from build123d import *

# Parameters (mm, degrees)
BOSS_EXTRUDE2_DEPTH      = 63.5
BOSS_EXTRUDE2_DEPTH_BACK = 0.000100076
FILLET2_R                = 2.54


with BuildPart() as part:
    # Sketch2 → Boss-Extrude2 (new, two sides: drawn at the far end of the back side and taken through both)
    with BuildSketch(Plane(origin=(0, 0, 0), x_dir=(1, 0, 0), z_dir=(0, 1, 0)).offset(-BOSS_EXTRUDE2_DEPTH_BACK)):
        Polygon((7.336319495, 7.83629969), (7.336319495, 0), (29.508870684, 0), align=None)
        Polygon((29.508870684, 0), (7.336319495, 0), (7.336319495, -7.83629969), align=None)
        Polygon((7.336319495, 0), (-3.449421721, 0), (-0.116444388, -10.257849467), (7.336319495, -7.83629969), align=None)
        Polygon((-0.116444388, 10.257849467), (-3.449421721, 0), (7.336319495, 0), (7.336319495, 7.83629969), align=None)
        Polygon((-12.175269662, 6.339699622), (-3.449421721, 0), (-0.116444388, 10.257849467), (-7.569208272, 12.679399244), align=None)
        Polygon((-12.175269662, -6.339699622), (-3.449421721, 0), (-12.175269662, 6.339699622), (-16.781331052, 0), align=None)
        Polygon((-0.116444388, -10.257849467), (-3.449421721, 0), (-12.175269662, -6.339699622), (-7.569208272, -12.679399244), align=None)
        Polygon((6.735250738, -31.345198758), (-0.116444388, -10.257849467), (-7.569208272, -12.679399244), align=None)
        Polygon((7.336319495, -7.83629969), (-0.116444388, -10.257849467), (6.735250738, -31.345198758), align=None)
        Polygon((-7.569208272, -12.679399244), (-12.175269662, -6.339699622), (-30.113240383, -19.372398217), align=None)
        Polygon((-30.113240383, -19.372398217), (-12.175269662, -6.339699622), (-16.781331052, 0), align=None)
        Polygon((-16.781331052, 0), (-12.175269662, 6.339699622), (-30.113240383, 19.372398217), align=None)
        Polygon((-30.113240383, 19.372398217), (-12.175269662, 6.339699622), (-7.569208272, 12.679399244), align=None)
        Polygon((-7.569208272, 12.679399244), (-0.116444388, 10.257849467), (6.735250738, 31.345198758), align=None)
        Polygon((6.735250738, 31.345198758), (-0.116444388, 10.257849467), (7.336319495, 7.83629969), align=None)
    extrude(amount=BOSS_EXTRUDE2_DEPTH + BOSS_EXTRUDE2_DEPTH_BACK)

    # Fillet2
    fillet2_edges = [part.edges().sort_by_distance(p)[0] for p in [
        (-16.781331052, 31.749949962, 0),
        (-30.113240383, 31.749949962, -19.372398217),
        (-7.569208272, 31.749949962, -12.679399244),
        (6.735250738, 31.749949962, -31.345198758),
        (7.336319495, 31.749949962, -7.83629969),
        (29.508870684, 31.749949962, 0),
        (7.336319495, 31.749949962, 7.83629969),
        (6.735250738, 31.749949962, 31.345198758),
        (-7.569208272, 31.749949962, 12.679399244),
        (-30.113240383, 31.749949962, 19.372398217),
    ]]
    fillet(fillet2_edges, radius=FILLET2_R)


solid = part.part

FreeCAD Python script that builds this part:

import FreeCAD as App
import Part
import Sketcher
from FreeCAD import Vector


def edges_at(feature, points):
    """Names of the edges that pass closest to the given points."""
    edges = feature.Shape.Edges
    near = lambda p: min(range(len(edges)), key=lambda i: edges[i].distToShape(Part.Vertex(*p))[0])
    return sorted({f"Edge{near(p) + 1}" for p in points})

doc = App.newDocument("Part")
params = doc.addObject("Spreadsheet::Sheet", "Params")
for row, (alias, value) in enumerate([
    ("pad1_length", "2.5 in"),
    ("pad1_length2", "0.0001 mm"),
    ("fillet_radius", "0.1 in"),
], start=1):
    params.set(f"A{row}", alias)
    params.set(f"B{row}", "=" + value)
    params.setAlias(f"B{row}", alias)

body = doc.addObject("PartDesign::Body", "Body")

# Sketch on XZ plane
sketch1 = body.newObject("Sketcher::SketchObject", "Sketch")
sketch1.AttachmentSupport = (doc.getObject("XZ_Plane"), [""])
sketch1.MapMode = "FlatFace"
sketch1.addGeometry([
    Part.LineSegment(Vector(7, 8, 0), Vector(30, 0, 0)),  # 0
    Part.LineSegment(Vector(30, 0, 0), Vector(7, -8, 0)),  # 1
    Part.LineSegment(Vector(7, -8, 0), Vector(7, -31, 0)),  # 2
    Part.LineSegment(Vector(7, -31, 0), Vector(-8, -13, 0)),  # 3
    Part.LineSegment(Vector(-8, -13, 0), Vector(-30, -19, 0)),  # 4
    Part.LineSegment(Vector(-30, -19, 0), Vector(-17, 0, 0)),  # 5
    Part.LineSegment(Vector(-17, 0, 0), Vector(-30, 19, 0)),  # 6
    Part.LineSegment(Vector(-30, 19, 0), Vector(-8, 13, 0)),  # 7
    Part.LineSegment(Vector(-8, 13, 0), Vector(7, 31, 0)),  # 8
    Part.LineSegment(Vector(7, 31, 0), Vector(7, 8, 0)),  # 9
], False)
sketch1.addConstraint([
    Sketcher.Constraint("Coincident", 0, 2, 1, 1),
    Sketcher.Constraint("Coincident", 1, 2, 2, 1),
    Sketcher.Constraint("Coincident", 2, 2, 3, 1),
    Sketcher.Constraint("Coincident", 3, 2, 4, 1),
    Sketcher.Constraint("Coincident", 4, 2, 5, 1),
    Sketcher.Constraint("Coincident", 5, 2, 6, 1),
    Sketcher.Constraint("Coincident", 6, 2, 7, 1),
    Sketcher.Constraint("Coincident", 7, 2, 8, 1),
    Sketcher.Constraint("Coincident", 8, 2, 9, 1),
    Sketcher.Constraint("Coincident", 9, 2, 0, 1),
    Sketcher.Constraint("Symmetric", 4, 2, 6, 2, -1),
    Sketcher.Constraint("Symmetric", 3, 2, 7, 2, -1),
    Sketcher.Constraint("Symmetric", 2, 2, 8, 2, -1),
    Sketcher.Constraint("Symmetric", 1, 2, 9, 2, -1),
    Sketcher.Constraint("PointOnObject", 0, 2, -1),
    Sketcher.Constraint("PointOnObject", 5, 2, -1),
    Sketcher.Constraint("Equal", 1, 2),
    Sketcher.Constraint("Equal", 2, 3),
    Sketcher.Constraint("Equal", 3, 4),
    Sketcher.Constraint("Equal", 4, 5),
    Sketcher.Constraint("DistanceY", 1, 2, -1, 1, 7.8363),
    Sketcher.Constraint("DistanceY", 2, 2, -1, 1, 31.345199),
    Sketcher.Constraint("DistanceY", 3, 2, -1, 1, 12.679399),
    Sketcher.Constraint("DistanceY", 4, 2, -1, 1, 19.372398),
    Sketcher.Constraint("DistanceX", 5, 2, 0, 2, 46.290202),
    Sketcher.Constraint("DistanceX", -1, 1, 0, 2, 29.508871),
])
pad1 = body.newObject("PartDesign::Pad", "Pad")
pad1.Profile = sketch1
pad1.Type = "TwoLengths"
pad1.setExpression("Length", "Params.pad1_length")
pad1.setExpression("Length2", "Params.pad1_length2")
pad1.Reversed = True
doc.recompute()

fillet = body.newObject("PartDesign::Fillet", "Fillet")
fillet.Base = (pad1, edges_at(pad1, [
    (-16.781, 31.75, 0),
    (-30.113, 31.75, -19.372),
    (-7.569, 31.75, -12.679),
    (6.735, 31.75, -31.345),
    (7.336, 31.75, -7.836),
    (29.509, 31.75, 0),
    (7.336, 31.75, 7.836),
    (6.735, 31.75, 31.345),
    (-7.569, 31.75, 12.679),
    (-30.113, 31.75, 19.372),
]))
fillet.setExpression("Radius", "Params.fillet_radius")

doc.recompute()
